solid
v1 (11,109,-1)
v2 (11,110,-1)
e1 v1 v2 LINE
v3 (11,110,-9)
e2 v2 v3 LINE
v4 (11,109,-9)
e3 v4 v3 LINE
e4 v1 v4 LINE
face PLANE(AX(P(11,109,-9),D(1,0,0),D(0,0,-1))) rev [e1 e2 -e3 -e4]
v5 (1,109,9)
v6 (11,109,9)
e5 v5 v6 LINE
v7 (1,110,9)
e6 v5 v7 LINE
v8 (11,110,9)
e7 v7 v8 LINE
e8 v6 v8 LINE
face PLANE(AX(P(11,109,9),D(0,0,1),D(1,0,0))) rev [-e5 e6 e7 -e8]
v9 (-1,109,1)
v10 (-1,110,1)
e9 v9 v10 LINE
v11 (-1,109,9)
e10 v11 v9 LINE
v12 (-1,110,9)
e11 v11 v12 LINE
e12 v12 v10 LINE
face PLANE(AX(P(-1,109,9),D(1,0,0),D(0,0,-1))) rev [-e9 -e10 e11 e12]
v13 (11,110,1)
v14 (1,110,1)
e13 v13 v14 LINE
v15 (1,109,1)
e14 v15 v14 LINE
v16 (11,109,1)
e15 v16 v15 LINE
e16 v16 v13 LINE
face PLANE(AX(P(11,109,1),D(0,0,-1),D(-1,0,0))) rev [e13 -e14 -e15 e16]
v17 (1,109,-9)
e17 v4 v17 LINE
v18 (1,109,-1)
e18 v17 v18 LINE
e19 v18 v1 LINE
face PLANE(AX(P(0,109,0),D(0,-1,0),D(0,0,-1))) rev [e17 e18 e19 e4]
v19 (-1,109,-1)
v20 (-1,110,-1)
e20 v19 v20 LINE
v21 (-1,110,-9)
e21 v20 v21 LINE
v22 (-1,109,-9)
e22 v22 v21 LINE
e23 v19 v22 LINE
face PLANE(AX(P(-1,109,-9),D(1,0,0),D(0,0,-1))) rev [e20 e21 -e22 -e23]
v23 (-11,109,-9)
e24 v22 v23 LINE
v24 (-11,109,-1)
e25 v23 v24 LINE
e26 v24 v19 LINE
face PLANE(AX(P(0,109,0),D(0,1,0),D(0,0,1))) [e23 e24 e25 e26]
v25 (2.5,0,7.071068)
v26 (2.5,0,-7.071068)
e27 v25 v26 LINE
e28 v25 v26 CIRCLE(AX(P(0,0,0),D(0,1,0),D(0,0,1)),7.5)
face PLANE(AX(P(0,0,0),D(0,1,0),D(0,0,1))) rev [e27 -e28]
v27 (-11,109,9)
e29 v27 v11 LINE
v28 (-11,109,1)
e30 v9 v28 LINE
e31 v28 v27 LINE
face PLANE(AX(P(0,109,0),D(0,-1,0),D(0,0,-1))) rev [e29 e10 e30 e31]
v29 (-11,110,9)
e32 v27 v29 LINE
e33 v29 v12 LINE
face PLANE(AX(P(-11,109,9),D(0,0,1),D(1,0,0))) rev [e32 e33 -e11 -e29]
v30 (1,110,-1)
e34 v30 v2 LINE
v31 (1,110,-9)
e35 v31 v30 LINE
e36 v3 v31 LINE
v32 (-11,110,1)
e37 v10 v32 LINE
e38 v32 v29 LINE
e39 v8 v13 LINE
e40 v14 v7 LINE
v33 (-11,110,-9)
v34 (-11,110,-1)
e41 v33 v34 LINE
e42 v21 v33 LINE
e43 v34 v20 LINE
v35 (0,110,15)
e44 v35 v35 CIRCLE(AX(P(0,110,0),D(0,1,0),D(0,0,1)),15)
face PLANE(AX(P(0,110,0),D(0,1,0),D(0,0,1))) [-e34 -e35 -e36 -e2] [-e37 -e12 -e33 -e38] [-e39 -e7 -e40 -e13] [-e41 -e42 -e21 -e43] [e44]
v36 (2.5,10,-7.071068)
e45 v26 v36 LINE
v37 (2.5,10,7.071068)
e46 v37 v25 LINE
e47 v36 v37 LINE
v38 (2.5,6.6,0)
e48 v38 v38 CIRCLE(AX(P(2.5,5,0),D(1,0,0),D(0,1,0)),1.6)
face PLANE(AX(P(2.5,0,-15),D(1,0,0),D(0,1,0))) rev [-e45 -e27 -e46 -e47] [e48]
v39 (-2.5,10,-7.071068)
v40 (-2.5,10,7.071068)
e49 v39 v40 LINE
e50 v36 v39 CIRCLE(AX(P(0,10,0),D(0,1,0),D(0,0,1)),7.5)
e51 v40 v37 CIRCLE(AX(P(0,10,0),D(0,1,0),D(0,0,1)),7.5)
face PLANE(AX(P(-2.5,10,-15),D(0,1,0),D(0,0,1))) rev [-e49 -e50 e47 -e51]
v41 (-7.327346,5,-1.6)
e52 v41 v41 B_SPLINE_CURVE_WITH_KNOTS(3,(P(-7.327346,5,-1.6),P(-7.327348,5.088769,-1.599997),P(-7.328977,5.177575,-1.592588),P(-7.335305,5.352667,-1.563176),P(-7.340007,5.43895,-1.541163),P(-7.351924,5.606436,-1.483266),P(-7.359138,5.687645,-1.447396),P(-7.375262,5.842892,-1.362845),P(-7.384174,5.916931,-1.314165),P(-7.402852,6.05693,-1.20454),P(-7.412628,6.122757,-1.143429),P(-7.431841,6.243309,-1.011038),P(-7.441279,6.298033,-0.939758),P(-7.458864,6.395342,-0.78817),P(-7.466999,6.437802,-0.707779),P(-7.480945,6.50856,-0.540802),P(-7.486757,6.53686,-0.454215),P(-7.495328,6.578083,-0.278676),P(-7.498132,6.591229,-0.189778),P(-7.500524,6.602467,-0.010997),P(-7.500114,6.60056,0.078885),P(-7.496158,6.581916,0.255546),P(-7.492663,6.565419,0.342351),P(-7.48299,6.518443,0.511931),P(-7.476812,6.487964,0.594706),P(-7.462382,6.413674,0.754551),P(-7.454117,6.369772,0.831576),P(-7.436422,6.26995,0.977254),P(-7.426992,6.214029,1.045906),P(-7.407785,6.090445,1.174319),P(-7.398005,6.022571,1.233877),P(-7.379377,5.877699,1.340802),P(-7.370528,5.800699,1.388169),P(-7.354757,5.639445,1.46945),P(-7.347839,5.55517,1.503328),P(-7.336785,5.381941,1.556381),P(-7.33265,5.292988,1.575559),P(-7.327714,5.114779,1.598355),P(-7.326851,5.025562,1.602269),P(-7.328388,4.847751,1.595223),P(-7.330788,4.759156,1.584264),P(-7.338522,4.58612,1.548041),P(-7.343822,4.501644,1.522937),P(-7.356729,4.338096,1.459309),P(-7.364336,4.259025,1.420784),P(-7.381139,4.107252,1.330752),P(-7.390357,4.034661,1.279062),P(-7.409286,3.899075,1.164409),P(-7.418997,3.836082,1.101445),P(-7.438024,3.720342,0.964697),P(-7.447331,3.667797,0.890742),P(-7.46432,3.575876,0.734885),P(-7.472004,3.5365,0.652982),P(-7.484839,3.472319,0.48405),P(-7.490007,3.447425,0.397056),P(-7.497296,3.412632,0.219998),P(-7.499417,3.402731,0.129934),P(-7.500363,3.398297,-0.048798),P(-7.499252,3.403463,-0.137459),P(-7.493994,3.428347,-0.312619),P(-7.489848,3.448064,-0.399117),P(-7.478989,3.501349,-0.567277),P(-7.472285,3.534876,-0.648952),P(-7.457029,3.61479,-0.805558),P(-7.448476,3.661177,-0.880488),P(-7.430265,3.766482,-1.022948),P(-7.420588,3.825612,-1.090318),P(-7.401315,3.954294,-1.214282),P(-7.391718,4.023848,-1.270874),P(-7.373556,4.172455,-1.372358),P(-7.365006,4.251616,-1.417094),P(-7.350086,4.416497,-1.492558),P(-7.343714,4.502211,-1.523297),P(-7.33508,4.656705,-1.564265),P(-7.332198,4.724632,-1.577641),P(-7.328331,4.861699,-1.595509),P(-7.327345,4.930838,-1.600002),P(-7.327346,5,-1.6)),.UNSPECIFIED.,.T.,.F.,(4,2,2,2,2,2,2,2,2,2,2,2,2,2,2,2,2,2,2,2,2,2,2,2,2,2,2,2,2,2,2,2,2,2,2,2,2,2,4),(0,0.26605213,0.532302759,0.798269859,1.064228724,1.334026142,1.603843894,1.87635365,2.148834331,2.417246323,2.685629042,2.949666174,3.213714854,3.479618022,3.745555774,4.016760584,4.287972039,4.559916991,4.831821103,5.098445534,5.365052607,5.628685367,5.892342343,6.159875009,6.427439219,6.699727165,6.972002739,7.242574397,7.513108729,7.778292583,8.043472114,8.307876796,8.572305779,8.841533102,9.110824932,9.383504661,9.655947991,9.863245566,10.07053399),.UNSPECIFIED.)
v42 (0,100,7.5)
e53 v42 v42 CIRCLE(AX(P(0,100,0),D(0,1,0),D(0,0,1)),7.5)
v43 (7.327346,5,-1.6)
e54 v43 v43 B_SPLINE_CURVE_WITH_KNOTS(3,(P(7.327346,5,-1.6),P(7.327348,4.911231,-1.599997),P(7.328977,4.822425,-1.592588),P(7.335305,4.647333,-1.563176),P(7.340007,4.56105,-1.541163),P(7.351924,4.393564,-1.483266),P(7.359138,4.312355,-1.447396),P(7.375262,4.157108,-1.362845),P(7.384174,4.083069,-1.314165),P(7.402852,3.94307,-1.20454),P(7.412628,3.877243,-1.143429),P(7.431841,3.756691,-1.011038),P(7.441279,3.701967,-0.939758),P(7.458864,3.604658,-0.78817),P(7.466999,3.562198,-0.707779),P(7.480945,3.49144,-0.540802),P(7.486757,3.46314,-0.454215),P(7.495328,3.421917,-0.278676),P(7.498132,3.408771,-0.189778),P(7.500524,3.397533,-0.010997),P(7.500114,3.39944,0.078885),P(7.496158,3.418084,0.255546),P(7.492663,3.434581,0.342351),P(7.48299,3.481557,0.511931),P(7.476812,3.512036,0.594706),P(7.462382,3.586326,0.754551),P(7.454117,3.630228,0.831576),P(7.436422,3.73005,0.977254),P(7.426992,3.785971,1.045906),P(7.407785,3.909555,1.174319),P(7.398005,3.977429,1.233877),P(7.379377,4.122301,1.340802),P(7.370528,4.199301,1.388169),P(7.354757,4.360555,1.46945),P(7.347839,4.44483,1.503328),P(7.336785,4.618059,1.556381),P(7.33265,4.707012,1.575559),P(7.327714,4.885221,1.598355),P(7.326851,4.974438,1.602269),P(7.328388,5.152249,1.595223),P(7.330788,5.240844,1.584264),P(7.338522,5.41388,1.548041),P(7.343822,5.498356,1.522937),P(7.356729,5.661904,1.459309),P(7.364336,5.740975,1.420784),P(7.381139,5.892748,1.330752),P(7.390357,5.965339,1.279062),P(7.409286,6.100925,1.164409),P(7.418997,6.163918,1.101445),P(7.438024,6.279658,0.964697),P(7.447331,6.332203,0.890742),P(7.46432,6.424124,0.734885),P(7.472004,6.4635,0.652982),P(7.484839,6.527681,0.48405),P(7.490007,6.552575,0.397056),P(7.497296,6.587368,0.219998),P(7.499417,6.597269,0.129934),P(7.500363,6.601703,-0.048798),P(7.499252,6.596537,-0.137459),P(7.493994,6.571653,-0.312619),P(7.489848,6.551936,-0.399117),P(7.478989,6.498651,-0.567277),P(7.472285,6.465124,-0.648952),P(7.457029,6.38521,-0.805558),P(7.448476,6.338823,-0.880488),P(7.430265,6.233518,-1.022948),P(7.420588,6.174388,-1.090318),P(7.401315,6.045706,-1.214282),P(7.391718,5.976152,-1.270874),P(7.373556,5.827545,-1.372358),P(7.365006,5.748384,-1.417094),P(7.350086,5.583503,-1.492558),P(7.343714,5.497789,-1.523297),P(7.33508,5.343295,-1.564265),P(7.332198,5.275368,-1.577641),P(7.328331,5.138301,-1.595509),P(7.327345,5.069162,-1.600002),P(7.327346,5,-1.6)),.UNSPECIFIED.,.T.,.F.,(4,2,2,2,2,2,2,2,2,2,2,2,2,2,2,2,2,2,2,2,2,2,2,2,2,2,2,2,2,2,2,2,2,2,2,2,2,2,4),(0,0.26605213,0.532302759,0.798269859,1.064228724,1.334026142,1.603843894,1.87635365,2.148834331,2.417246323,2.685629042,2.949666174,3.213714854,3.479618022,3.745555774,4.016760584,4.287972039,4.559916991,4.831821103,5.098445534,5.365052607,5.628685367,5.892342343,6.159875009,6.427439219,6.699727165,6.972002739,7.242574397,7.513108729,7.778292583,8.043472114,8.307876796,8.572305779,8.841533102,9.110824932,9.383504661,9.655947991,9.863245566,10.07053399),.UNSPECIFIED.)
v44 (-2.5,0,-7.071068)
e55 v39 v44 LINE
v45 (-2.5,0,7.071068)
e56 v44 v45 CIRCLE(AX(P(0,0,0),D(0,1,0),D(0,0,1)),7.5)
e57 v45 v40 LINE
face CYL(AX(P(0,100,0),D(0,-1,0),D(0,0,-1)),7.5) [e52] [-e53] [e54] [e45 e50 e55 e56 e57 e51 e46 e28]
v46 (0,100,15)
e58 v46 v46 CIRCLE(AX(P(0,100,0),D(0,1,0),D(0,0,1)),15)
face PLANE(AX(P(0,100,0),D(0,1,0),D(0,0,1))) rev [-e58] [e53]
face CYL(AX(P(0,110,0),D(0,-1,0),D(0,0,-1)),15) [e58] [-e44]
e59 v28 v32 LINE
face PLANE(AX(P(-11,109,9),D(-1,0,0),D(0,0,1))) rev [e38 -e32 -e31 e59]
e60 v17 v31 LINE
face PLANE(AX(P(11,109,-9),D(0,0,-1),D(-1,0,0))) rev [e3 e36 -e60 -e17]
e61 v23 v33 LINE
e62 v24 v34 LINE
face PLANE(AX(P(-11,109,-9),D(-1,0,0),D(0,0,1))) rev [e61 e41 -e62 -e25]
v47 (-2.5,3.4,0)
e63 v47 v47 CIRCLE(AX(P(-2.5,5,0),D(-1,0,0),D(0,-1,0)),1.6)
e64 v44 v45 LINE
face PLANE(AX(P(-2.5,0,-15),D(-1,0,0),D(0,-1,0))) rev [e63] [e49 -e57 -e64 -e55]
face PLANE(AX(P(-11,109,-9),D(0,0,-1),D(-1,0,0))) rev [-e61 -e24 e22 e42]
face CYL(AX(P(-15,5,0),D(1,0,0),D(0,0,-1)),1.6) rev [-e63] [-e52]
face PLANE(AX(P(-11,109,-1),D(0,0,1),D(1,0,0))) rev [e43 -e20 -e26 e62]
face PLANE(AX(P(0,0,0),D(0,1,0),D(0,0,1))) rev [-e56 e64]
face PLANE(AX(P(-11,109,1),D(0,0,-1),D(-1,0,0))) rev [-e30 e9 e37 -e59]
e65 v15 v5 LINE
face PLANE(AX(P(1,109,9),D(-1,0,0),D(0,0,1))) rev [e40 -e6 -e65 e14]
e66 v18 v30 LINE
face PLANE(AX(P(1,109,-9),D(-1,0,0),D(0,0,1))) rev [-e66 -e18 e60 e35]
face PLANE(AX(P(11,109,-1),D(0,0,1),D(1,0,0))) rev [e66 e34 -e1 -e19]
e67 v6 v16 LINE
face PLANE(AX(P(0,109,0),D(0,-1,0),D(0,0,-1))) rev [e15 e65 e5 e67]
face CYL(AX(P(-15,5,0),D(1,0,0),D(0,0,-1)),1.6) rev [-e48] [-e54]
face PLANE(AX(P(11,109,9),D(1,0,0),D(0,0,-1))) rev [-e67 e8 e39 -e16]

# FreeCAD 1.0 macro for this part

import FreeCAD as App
import Part
import Sketcher
from FreeCAD import Vector
Q = App.Units.Quantity

doc = App.newDocument("Part")
params = doc.addObject("Spreadsheet::Sheet", "Params")
for row, (alias, value) in enumerate([
    ("sketch1_diameter", "15 mm"),
    ("pad1_length", "100 mm"),
    ("sketch2_diameter", "30 mm"),
    ("pad2_length", "10 mm"),
    ("sketch3_width", "5 mm"),
    ("sketch3_height", "10 mm"),
    ("sketch4_diameter", "3.2 mm"),
    ("sketch5_width", "10 mm"),
    ("sketch5_height", "8 mm"),
    ("pocket3_length", "1 mm"),
], start=1):
    params.set(f"A{row}", alias)
    params.set(f"B{row}", "=" + value)
    params.setAlias(f"B{row}", alias)

body = doc.addObject("PartDesign::Body", "Body")

# Sketch on XZ plane
sketch1 = body.newObject("Sketcher::SketchObject", "Sketch")
sketch1.AttachmentSupport = (doc.getObject("XZ_Plane"), [""])
sketch1.MapMode = "FlatFace"
sketch1.addGeometry(Part.Circle(Vector(0, 0, 0), Vector(0, 0, 1), 8), False)
sketch1.addConstraint([
    Sketcher.Constraint("Coincident", 0, 3, -1, 1),
    Sketcher.Constraint("Diameter", 0, Q("15 mm")),
])
sketch1.setExpression("Constraints[1]", "Params.sketch1_diameter")
pad1 = body.newObject("PartDesign::Pad", "Pad")
pad1.Profile = sketch1
pad1.setExpression("Length", "Params.pad1_length")
pad1.Reversed = True

# Sketch on XZ plane
sketch2 = body.newObject("Sketcher::SketchObject", "Sketch001")
sketch2.AttachmentSupport = (doc.getObject("XZ_Plane"), [""])
sketch2.MapMode = "FlatFace"
sketch2.AttachmentOffset = App.Placement(Vector(0, 0, -100), App.Rotation())
sketch2.addGeometry(Part.Circle(Vector(0, 0, 0), Vector(0, 0, 1), 15), False)
sketch2.addConstraint([
    Sketcher.Constraint("Coincident", 0, 3, -1, 1),
    Sketcher.Constraint("Diameter", 0, Q("30 mm")),
])
sketch2.setExpression("Constraints[1]", "Params.sketch2_diameter")
pad2 = body.newObject("PartDesign::Pad", "Pad001")
pad2.Profile = sketch2
pad2.setExpression("Length", "Params.pad2_length")
pad2.Reversed = True

# Sketch on XY plane
sketch3 = body.newObject("Sketcher::SketchObject", "Sketch002")
sketch3.AttachmentSupport = (doc.getObject("XY_Plane"), [""])
sketch3.MapMode = "FlatFace"
sketch3.addGeometry([
    Part.LineSegment(Vector(-2, 10, 0), Vector(-2, 0, 0)),
    Part.LineSegment(Vector(-2, 0, 0), Vector(2, 0, 0)),
    Part.LineSegment(Vector(2, 0, 0), Vector(2, 10, 0)),
    Part.LineSegment(Vector(2, 10, 0), Vector(-2, 10, 0)),
], False)
sketch3.addConstraint([
    Sketcher.Constraint("Coincident", 0, 2, 1, 1),
    Sketcher.Constraint("Coincident", 1, 2, 2, 1),
    Sketcher.Constraint("Coincident", 2, 2, 3, 1),
    Sketcher.Constraint("Coincident", 3, 2, 0, 1),
    Sketcher.Constraint("Vertical", 0),
    Sketcher.Constraint("Horizontal", 1),
    Sketcher.Constraint("Vertical", 2),
    Sketcher.Constraint("Horizontal", 3),
    Sketcher.Constraint("Symmetric", 0, 2, 1, 2, -1, 1),
    Sketcher.Constraint("DistanceX", 1, 1, 1, 2, Q("5 mm")),
    Sketcher.Constraint("DistanceY", 0, 2, 0, 1, Q("10 mm")),
])
sketch3.setExpression("Constraints[9]", "Params.sketch3_width")
sketch3.setExpression("Constraints[10]", "Params.sketch3_height")
pocket1 = body.newObject("PartDesign::Pocket", "Pocket")
pocket1.Profile = sketch3
pocket1.Type = "ThroughAll"
pocket1.Midplane = True

# Sketch on YZ plane
sketch4 = body.newObject("Sketcher::SketchObject", "Sketch003")
sketch4.AttachmentSupport = (doc.getObject("YZ_Plane"), [""])
sketch4.MapMode = "FlatFace"
sketch4.addGeometry(Part.Circle(Vector(5, 0, 0), Vector(0, 0, 1), 1.6), False)
sketch4.addConstraint([
    Sketcher.Constraint("PointOnObject", 0, 3, -1),
    Sketcher.Constraint("Diameter", 0, Q("3.2 mm")),
    Sketcher.Constraint("DistanceX", -1, 1, 0, 3, Q("5 mm")),
])
sketch4.setExpression("Constraints[1]", "Params.sketch4_diameter")
pocket2 = body.newObject("PartDesign::Pocket", "Pocket001")
pocket2.Profile = sketch4
pocket2.Type = "ThroughAll"
pocket2.Midplane = True

# Sketch on XZ plane
sketch5 = body.newObject("Sketcher::SketchObject", "Sketch004")
sketch5.AttachmentSupport = (doc.getObject("XZ_Plane"), [""])
sketch5.MapMode = "FlatFace"
sketch5.AttachmentOffset = App.Placement(Vector(0, 0, -110), App.Rotation())
sketch5.addGeometry([
    Part.LineSegment(Vector(-11, -9, 0), Vector(-11, -1, 0)),  # 0
    Part.LineSegment(Vector(-11, -1, 0), Vector(-1, -1, 0)),  # 1
    Part.LineSegment(Vector(-1, -1, 0), Vector(-1, -9, 0)),  # 2
    Part.LineSegment(Vector(-1, -9, 0), Vector(-11, -9, 0)),  # 3
    Part.LineSegment(Vector(1, -9, 0), Vector(1, -1, 0)),  # 4
    Part.LineSegment(Vector(1, -1, 0), Vector(11, -1, 0)),  # 5
    Part.LineSegment(Vector(11, -1, 0), Vector(11, -9, 0)),  # 6
    Part.LineSegment(Vector(11, -9, 0), Vector(1, -9, 0)),  # 7
    Part.LineSegment(Vector(1, 1, 0), Vector(1, 9, 0)),  # 8
    Part.LineSegment(Vector(1, 9, 0), Vector(11, 9, 0)),  # 9
    Part.LineSegment(Vector(11, 9, 0), Vector(11, 1, 0)),  # 10
    Part.LineSegment(Vector(11, 1, 0), Vector(1, 1, 0)),  # 11
    Part.LineSegment(Vector(-11, 1, 0), Vector(-11, 9, 0)),  # 12
    Part.LineSegment(Vector(-11, 9, 0), Vector(-1, 9, 0)),  # 13
    Part.LineSegment(Vector(-1, 9, 0), Vector(-1, 1, 0)),  # 14
    Part.LineSegment(Vector(-1, 1, 0), Vector(-11, 1, 0)),  # 15
], False)
sketch5.addConstraint([
    Sketcher.Constraint("Coincident", 0, 2, 1, 1),
    Sketcher.Constraint("Coincident", 1, 2, 2, 1),
    Sketcher.Constraint("Coincident", 2, 2, 3, 1),
    Sketcher.Constraint("Coincident", 3, 2, 0, 1),
    Sketcher.Constraint("Coincident", 4, 2, 5, 1),
    Sketcher.Constraint("Coincident", 5, 2, 6, 1),
    Sketcher.Constraint("Coincident", 6, 2, 7, 1),
    Sketcher.Constraint("Coincident", 7, 2, 4, 1),
    Sketcher.Constraint("Coincident", 8, 2, 9, 1),
    Sketcher.Constraint("Coincident", 9, 2, 10, 1),
    Sketcher.Constraint("Coincident", 10, 2, 11, 1),
    Sketcher.Constraint("Coincident", 11, 2, 8, 1),
    Sketcher.Constraint("Coincident", 12, 2, 13, 1),
    Sketcher.Constraint("Coincident", 13, 2, 14, 1),
    Sketcher.Constraint("Coincident", 14, 2, 15, 1),
    Sketcher.Constraint("Coincident", 15, 2, 12, 1),
    Sketcher.Constraint("Vertical", 0),
    Sketcher.Constraint("Horizontal", 1),
    Sketcher.Constraint("Vertical", 2),
    Sketcher.Constraint("Horizontal", 3),
    Sketcher.Constraint("Vertical", 4),
    Sketcher.Constraint("Horizontal", 5),
    Sketcher.Constraint("Vertical", 6),
    Sketcher.Constraint("Horizontal", 7),
    Sketcher.Constraint("Vertical", 8),
    Sketcher.Constraint("Horizontal", 9),
    Sketcher.Constraint("Vertical", 10),
    Sketcher.Constraint("Horizontal", 11),
    Sketcher.Constraint("Vertical", 12),
    Sketcher.Constraint("Horizontal", 13),
    Sketcher.Constraint("Vertical", 14),
    Sketcher.Constraint("Horizontal", 15),
    Sketcher.Constraint("Symmetric", 2, 2, 8, 2, -1, 1),
    Sketcher.Constraint("Symmetric", 0, 2, 10, 2, -1, 1),
    Sketcher.Constraint("Symmetric", 6, 2, 12, 2, -1, 1),
    Sketcher.Constraint("Symmetric", 4, 2, 14, 2, -1, 1),
    Sketcher.Constraint("Symmetric", 1, 2, 4, 2, -2),
    Sketcher.Constraint("Symmetric", 3, 2, 6, 2, -2),
    Sketcher.Constraint("DistanceX", 1, 1, 1, 2, Q("10 mm")),
    Sketcher.Constraint("DistanceY", 0, 1, 0, 2, Q("8 mm")),
    Sketcher.Constraint("DistanceX", 0, 2, -1, 1, Q("11 mm")),
    Sketcher.Constraint("DistanceY", 0, 2, -1, 1, Q("1 mm")),
])
sketch5.setExpression("Constraints[38]", "Params.sketch5_width")
sketch5.setExpression("Constraints[39]", "Params.sketch5_height")
pocket3 = body.newObject("PartDesign::Pocket", "Pocket002")
pocket3.Profile = sketch5
pocket3.setExpression("Length", "Params.pocket3_length")
pocket3.Reversed = True

doc.recompute()
